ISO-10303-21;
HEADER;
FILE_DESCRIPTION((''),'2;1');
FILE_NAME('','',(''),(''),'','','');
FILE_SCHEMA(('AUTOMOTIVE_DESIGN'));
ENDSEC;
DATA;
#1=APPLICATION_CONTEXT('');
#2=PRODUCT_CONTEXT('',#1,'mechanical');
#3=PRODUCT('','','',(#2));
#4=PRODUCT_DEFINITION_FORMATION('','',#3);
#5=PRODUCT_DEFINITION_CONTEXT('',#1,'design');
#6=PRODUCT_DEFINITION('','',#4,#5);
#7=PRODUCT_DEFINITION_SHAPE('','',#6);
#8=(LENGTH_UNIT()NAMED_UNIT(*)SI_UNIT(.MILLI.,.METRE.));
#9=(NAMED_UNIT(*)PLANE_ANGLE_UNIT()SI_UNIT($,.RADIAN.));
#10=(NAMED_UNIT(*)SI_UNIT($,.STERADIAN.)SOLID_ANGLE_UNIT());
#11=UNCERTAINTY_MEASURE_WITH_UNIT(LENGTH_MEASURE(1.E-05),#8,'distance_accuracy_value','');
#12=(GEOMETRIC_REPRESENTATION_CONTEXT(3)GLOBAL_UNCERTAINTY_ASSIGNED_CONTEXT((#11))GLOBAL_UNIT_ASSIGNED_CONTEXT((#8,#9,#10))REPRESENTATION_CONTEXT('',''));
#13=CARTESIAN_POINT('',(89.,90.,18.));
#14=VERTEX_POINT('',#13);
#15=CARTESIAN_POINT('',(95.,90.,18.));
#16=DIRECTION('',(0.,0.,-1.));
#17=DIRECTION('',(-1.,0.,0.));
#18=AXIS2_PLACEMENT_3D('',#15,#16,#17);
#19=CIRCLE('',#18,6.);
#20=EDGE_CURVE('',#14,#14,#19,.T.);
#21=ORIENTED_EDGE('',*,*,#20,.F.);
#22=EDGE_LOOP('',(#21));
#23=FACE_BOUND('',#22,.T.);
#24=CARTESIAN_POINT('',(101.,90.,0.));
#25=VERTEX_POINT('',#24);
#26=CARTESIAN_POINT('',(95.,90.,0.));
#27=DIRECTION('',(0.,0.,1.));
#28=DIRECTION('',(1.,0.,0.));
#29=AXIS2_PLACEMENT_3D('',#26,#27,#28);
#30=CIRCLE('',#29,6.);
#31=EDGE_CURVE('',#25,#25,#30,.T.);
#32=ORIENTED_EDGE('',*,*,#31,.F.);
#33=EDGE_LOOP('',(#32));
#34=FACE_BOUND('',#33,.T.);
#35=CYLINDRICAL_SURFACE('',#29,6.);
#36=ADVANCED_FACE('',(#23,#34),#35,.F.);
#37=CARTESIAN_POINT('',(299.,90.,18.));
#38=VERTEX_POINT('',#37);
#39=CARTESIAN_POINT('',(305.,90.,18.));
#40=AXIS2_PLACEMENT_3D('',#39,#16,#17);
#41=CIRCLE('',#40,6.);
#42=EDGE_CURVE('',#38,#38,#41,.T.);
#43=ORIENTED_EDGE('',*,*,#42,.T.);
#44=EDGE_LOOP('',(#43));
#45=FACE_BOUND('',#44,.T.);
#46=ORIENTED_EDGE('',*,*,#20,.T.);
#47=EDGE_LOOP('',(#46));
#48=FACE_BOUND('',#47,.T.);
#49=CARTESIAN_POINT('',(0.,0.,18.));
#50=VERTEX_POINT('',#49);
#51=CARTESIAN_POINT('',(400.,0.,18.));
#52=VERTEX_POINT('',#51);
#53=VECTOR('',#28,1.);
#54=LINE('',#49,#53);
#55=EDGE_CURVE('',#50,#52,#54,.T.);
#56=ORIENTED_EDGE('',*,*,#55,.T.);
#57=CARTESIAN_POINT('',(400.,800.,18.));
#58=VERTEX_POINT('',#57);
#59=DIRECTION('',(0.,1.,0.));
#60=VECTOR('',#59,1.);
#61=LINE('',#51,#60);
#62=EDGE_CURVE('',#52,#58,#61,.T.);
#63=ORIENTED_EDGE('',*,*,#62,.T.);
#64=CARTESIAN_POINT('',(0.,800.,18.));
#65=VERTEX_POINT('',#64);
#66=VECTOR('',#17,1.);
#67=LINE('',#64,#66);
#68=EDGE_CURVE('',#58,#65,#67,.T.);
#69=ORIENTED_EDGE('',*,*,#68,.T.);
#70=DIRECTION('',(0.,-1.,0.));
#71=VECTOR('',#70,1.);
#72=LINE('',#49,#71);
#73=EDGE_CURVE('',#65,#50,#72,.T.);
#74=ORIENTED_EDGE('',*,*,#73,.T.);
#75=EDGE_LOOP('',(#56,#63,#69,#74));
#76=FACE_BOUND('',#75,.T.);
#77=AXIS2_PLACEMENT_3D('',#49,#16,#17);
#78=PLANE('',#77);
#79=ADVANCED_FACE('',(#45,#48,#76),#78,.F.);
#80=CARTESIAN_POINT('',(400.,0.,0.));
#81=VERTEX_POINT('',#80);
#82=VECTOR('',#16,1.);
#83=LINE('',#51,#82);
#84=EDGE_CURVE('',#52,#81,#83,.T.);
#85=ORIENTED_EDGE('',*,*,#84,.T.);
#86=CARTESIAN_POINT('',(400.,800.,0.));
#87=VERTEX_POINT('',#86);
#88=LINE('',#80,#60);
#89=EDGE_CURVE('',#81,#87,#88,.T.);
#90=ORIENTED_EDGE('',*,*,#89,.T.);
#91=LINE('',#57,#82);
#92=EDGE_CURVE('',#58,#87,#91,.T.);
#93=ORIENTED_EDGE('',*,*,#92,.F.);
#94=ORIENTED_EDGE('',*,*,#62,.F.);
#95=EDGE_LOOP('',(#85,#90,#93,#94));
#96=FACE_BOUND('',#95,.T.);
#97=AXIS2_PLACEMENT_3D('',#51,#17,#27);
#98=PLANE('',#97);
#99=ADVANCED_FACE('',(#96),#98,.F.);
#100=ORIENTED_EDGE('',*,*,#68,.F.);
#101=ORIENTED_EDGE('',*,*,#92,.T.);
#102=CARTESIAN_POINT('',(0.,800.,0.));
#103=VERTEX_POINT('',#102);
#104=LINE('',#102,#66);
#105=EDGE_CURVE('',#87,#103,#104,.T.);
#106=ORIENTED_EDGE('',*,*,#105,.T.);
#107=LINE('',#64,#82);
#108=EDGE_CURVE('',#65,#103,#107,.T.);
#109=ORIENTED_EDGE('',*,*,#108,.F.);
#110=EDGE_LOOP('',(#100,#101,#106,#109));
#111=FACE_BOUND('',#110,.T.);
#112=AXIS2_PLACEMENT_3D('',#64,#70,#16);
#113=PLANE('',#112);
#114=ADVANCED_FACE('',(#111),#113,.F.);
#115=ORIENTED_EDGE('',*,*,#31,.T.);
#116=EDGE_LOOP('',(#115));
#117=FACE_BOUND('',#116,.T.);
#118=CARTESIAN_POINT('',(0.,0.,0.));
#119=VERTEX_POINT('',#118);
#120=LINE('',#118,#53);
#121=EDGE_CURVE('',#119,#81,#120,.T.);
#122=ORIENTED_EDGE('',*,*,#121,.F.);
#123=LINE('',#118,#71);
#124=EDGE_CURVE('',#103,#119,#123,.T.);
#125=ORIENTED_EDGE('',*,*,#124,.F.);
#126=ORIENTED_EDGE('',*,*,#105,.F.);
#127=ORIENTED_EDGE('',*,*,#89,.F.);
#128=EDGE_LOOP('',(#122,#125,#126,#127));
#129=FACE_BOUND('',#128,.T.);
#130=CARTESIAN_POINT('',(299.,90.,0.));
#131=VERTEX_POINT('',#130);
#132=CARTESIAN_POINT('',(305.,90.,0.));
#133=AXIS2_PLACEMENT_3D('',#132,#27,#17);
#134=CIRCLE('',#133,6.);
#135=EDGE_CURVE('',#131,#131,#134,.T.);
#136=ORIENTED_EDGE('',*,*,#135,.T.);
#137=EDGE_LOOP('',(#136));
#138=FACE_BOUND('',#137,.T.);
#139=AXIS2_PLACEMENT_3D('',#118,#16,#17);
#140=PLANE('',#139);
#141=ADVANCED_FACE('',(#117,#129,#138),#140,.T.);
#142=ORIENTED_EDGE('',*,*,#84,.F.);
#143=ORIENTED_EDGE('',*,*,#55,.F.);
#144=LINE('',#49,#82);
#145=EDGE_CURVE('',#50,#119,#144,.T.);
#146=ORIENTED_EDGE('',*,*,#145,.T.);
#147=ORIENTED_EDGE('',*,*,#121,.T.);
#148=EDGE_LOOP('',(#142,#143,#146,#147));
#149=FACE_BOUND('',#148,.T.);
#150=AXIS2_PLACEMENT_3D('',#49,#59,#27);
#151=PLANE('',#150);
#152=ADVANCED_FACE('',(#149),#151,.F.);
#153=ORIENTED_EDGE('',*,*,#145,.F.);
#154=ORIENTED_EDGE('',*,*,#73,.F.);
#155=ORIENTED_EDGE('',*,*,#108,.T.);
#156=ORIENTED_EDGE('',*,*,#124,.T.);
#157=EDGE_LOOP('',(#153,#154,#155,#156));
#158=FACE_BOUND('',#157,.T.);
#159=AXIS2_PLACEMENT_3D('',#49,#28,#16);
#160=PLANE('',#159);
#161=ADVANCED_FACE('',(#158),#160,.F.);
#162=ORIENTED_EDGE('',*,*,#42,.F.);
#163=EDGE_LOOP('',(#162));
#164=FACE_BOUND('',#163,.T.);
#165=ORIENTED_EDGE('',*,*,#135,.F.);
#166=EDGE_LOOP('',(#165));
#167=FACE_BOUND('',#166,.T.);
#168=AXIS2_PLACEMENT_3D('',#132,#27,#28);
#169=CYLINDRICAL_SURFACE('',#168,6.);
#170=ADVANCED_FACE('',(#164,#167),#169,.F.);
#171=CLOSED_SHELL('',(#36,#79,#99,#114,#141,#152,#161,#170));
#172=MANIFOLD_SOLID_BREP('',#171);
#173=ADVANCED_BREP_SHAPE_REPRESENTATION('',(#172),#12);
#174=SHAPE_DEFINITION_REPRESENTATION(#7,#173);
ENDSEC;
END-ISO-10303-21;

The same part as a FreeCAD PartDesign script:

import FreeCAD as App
import Part
import Sketcher

doc = App.newDocument("Part")
body = doc.addObject("PartDesign::Body", "Body")

sketch1 = doc.addObject("Sketcher::SketchObject", "Sketch")
body.addObject(sketch1)
sketch1.AttachmentSupport = (doc.XY_Plane, [""])
sketch1.MapMode = "FlatFace"
sketch1.addGeometry(Part.LineSegment(App.Vector(0, 800, 0), App.Vector(0, 0, 0)), False)
sketch1.addGeometry(Part.LineSegment(App.Vector(0, 0, 0), App.Vector(400, 0, 0)), False)
sketch1.addGeometry(Part.LineSegment(App.Vector(400, 0, 0), App.Vector(400, 800, 0)), False)
sketch1.addGeometry(Part.LineSegment(App.Vector(400, 800, 0), App.Vector(0, 800, 0)), False)
sketch1.addConstraint(Sketcher.Constraint("Coincident", 0, 2, 1, 1))
sketch1.addConstraint(Sketcher.Constraint("Coincident", 1, 2, 2, 1))
sketch1.addConstraint(Sketcher.Constraint("Coincident", 2, 2, 3, 1))
sketch1.addConstraint(Sketcher.Constraint("Coincident", 3, 2, 0, 1))
sketch1.addConstraint(Sketcher.Constraint("Vertical", 0))
sketch1.addConstraint(Sketcher.Constraint("Horizontal", 1))
sketch1.addConstraint(Sketcher.Constraint("Vertical", 2))
sketch1.addConstraint(Sketcher.Constraint("Horizontal", 3))
sketch1.addConstraint(Sketcher.Constraint("Coincident", 0, 2, -1, 1))
sketch1.addConstraint(Sketcher.Constraint("DistanceX", 1, 1, 1, 2, 400.0))
sketch1.addConstraint(Sketcher.Constraint("DistanceY", 0, 2, 0, 1, 800.0))
pad1 = doc.addObject("PartDesign::Pad", "Pad")
body.addObject(pad1)
pad1.Profile = sketch1
pad1.Length = 18

sketch2 = doc.addObject("Sketcher::SketchObject", "Sketch001")
body.addObject(sketch2)
sketch2.AttachmentSupport = (doc.XY_Plane, [""])
sketch2.MapMode = "FlatFace"
sketch2.AttachmentOffset = App.Placement(App.Vector(0, 0, 18), App.Rotation())
sketch2.addGeometry(Part.Circle(App.Vector(95, 90, 0), App.Vector(0, 0, 1), 6), False)
sketch2.addGeometry(Part.Circle(App.Vector(305, 90, 0), App.Vector(0, 0, 1), 6), False)
sketch2.addConstraint(Sketcher.Constraint("Equal", 0, 1))
sketch2.addConstraint(Sketcher.Constraint("Horizontal", 0, 3, 1, 3))
sketch2.addConstraint(Sketcher.Constraint("Diameter", 0, 12.0))
sketch2.addConstraint(Sketcher.Constraint("DistanceX", -1, 1, 0, 3, 95.0))
sketch2.addConstraint(Sketcher.Constraint("DistanceY", -1, 1, 0, 3, 90.0))
sketch2.addConstraint(Sketcher.Constraint("DistanceX", -1, 1, 1, 3, 305.0))
pocket1 = doc.addObject("PartDesign::Pocket", "Pocket")
body.addObject(pocket1)
pocket1.Profile = sketch2
pocket1.Type = "ThroughAll"
pocket1.Midplane = True

doc.recompute()
